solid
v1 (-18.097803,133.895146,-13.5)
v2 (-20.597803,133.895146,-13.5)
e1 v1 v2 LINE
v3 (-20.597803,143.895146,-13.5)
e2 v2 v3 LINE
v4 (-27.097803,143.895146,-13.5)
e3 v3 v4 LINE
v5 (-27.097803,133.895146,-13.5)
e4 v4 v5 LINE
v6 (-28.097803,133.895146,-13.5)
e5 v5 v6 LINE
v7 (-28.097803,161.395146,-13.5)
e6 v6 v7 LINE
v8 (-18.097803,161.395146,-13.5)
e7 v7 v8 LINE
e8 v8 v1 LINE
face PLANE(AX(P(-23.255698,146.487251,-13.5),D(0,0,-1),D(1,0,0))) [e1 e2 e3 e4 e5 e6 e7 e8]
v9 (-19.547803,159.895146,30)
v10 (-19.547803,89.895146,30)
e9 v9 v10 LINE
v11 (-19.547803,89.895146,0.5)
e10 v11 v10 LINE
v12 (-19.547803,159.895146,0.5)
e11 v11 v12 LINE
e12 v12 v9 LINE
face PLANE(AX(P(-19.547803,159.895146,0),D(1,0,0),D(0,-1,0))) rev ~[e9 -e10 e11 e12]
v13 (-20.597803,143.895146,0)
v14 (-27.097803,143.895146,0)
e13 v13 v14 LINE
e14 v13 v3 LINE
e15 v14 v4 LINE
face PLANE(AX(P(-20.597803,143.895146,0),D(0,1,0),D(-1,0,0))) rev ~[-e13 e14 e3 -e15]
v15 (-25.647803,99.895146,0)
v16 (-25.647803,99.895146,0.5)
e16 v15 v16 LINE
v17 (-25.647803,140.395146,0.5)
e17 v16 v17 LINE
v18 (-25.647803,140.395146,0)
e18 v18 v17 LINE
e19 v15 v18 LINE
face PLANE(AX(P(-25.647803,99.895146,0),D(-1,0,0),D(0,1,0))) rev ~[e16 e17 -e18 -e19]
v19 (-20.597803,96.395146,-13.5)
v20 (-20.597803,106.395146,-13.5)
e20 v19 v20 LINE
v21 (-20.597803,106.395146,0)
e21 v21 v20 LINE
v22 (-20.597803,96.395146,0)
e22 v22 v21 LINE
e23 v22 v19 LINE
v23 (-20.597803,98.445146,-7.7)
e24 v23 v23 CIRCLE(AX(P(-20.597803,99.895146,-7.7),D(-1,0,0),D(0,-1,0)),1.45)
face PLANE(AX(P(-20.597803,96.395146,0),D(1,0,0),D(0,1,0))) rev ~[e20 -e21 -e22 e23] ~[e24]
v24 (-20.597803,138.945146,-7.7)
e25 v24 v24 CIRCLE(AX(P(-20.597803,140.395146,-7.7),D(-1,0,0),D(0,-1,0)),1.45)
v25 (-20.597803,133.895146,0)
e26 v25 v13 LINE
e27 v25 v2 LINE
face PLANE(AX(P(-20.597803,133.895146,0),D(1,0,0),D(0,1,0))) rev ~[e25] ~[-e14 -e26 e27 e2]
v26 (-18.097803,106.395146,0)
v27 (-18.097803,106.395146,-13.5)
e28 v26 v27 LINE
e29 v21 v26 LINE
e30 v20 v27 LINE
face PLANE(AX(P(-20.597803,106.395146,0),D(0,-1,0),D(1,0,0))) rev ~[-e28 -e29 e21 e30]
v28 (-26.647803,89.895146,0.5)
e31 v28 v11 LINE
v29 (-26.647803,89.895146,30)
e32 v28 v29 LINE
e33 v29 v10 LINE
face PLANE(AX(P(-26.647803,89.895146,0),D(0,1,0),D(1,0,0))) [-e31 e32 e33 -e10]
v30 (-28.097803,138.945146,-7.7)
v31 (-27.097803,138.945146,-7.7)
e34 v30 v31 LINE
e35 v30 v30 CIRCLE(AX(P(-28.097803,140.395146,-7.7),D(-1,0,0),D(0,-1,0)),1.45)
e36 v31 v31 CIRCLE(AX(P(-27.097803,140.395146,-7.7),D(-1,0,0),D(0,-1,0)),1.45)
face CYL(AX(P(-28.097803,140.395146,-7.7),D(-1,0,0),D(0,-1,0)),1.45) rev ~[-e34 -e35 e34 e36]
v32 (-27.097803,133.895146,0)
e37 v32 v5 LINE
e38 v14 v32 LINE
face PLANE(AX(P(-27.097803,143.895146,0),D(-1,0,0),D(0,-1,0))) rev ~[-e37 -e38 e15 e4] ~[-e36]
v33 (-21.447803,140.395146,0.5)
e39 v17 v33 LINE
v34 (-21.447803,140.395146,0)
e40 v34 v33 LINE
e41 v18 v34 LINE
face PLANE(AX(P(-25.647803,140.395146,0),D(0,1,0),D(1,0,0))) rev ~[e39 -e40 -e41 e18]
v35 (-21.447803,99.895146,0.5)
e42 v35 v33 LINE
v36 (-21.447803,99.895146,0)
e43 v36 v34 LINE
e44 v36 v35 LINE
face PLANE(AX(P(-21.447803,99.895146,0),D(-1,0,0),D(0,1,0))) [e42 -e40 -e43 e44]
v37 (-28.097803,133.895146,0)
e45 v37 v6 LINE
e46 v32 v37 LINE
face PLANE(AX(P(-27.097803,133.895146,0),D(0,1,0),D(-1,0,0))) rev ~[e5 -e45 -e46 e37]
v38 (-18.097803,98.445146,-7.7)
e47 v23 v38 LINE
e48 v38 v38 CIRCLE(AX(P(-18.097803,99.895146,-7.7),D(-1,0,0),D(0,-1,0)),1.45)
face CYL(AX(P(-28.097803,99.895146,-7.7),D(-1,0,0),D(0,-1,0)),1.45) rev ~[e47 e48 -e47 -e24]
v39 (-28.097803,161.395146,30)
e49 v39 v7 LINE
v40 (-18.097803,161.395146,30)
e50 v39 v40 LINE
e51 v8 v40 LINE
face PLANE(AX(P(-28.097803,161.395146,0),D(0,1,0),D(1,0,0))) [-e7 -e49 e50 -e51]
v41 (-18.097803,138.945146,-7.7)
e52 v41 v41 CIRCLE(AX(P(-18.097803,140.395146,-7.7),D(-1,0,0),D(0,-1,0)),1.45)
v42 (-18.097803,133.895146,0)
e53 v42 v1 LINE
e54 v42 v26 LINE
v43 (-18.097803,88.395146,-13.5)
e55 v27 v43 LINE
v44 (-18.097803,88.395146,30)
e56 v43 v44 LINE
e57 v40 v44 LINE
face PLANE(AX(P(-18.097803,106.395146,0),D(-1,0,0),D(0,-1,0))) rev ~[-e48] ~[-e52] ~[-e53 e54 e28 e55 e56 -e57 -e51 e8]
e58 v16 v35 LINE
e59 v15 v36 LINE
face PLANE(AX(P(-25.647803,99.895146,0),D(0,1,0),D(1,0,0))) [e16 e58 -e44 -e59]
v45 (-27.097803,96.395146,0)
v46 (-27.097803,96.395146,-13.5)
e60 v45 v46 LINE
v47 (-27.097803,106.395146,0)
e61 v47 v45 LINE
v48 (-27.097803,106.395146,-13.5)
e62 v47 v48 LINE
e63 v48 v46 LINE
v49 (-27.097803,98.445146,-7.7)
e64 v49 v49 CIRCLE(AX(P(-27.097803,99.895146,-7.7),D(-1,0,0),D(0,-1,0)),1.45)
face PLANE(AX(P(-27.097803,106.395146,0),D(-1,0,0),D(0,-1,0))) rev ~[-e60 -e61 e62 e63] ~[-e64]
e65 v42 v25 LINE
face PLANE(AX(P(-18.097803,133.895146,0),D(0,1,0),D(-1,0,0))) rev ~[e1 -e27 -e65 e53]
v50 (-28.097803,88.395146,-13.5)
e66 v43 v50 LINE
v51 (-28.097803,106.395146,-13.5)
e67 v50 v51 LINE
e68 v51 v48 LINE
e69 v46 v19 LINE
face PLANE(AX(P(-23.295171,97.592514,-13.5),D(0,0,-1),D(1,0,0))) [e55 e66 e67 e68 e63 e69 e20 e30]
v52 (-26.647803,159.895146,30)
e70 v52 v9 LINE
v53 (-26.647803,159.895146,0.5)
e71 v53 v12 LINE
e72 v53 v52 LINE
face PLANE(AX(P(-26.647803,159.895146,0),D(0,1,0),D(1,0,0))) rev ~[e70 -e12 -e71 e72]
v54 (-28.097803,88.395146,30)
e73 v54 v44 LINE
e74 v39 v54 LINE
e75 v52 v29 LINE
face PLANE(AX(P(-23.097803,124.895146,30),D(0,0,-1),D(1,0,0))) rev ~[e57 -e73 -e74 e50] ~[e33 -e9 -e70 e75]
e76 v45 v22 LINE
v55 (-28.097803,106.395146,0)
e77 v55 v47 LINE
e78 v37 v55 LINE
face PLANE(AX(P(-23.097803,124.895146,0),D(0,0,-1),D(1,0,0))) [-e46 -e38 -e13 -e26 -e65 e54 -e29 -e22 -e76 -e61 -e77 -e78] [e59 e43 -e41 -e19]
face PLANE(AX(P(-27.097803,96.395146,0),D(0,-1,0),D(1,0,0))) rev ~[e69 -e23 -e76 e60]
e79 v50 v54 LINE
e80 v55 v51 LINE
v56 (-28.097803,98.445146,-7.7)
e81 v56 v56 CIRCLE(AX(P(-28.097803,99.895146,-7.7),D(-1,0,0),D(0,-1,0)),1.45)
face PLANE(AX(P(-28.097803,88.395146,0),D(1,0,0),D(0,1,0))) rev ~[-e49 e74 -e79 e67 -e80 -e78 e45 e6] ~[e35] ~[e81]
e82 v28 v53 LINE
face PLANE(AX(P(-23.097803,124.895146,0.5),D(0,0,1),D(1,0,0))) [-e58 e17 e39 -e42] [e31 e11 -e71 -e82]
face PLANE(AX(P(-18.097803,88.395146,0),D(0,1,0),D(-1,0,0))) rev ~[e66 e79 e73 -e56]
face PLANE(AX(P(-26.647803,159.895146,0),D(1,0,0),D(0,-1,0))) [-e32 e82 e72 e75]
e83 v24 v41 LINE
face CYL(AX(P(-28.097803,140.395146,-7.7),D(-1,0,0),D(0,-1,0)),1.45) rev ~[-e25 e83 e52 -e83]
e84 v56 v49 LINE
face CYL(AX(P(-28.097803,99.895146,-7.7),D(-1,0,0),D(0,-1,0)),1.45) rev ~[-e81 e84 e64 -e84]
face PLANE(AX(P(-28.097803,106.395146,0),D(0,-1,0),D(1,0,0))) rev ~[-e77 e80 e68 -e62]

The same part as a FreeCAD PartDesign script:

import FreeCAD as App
import Part
import Sketcher
from FreeCAD import Vector
Q = App.Units.Quantity

doc = App.newDocument("Part")
params = doc.addObject("Spreadsheet::Sheet", "Params")
for row, (alias, value) in enumerate([
    ("sketch1_height", "70 mm"),
    ("sketch1_width", "7.1 mm"),
    ("sketch1_width2", "4.2 mm"),
    ("sketch1_height2", "40.5 mm"),
    ("pad1_length", "0.5 mm"),
    ("sketch2_width", "10 mm"),
    ("sketch2_height", "73 mm"),
    ("sketch2_height2", "70 mm"),
    ("sketch2_width2", "7.1 mm"),
    ("pad2_length", "30 mm"),
    ("sketch3_width", "1 mm"),
    ("sketch3_width2", "10 mm"),
    ("sketch3_height", "18 mm"),
    ("sketch3_width3", "6.5 mm"),
    ("sketch3_height2", "27.5 mm"),
    ("pad3_length", "13.5 mm"),
    ("sketch4_diameter", "2.9 mm"),
], start=1):
    params.set(f"A{row}", alias)
    params.set(f"B{row}", "=" + value)
    params.setAlias(f"B{row}", alias)

body = doc.addObject("PartDesign::Body", "Body")

sketch1 = body.newObject("Sketcher::SketchObject", "Sketch")
sketch1.AttachmentSupport = (doc.getObject("XY_Plane"), [""])
sketch1.MapMode = "FlatFace"
sketch1.addGeometry(Part.LineSegment(Vector(-26.6, 159.9, 0), Vector(-26.6, 89.9, 0)), False)
sketch1.addGeometry(Part.LineSegment(Vector(-26.6, 89.9, 0), Vector(-19.5, 89.9, 0)), False)
sketch1.addGeometry(Part.LineSegment(Vector(-19.5, 89.9, 0), Vector(-19.5, 159.9, 0)), False)
sketch1.addGeometry(Part.LineSegment(Vector(-19.5, 159.9, 0), Vector(-26.6, 159.9, 0)), False)
sketch1.addGeometry(Part.LineSegment(Vector(-21.4, 99.9, 0), Vector(-25.6, 99.9, 0)), False)
sketch1.addGeometry(Part.LineSegment(Vector(-25.6, 99.9, 0), Vector(-25.6, 140.4, 0)), False)
sketch1.addGeometry(Part.LineSegment(Vector(-25.6, 140.4, 0), Vector(-21.4, 140.4, 0)), False)
sketch1.addGeometry(Part.LineSegment(Vector(-21.4, 140.4, 0), Vector(-21.4, 99.9, 0)), False)
sketch1.addConstraint(Sketcher.Constraint("Coincident", 0, 2, 1, 1))
sketch1.addConstraint(Sketcher.Constraint("Coincident", 1, 2, 2, 1))
sketch1.addConstraint(Sketcher.Constraint("Coincident", 2, 2, 3, 1))
sketch1.addConstraint(Sketcher.Constraint("Coincident", 3, 2, 0, 1))
sketch1.addConstraint(Sketcher.Constraint("Coincident", 4, 2, 5, 1))
sketch1.addConstraint(Sketcher.Constraint("Coincident", 5, 2, 6, 1))
sketch1.addConstraint(Sketcher.Constraint("Coincident", 6, 2, 7, 1))
sketch1.addConstraint(Sketcher.Constraint("Coincident", 7, 2, 4, 1))
sketch1.addConstraint(Sketcher.Constraint("Vertical", 0))
sketch1.addConstraint(Sketcher.Constraint("Horizontal", 1))
sketch1.addConstraint(Sketcher.Constraint("Vertical", 2))
sketch1.addConstraint(Sketcher.Constraint("Horizontal", 3))
sketch1.addConstraint(Sketcher.Constraint("Horizontal", 4))
sketch1.addConstraint(Sketcher.Constraint("Vertical", 5))
sketch1.addConstraint(Sketcher.Constraint("Horizontal", 6))
sketch1.addConstraint(Sketcher.Constraint("Vertical", 7))
sketch1.addConstraint(Sketcher.Constraint("DistanceY", 0, 2, 0, 1, Q("70 mm")))
sketch1.addConstraint(Sketcher.Constraint("DistanceX", 1, 1, 1, 2, Q("7.1 mm")))
sketch1.addConstraint(Sketcher.Constraint("DistanceX", 4, 2, 4, 1, Q("4.2 mm")))
sketch1.addConstraint(Sketcher.Constraint("DistanceY", 5, 1, 5, 2, Q("40.5 mm")))
sketch1.addConstraint(Sketcher.Constraint("DistanceX", 0, 2, 4, 2, Q("1 mm")))
sketch1.addConstraint(Sketcher.Constraint("DistanceY", 0, 2, 4, 2, Q("10 mm")))
sketch1.addConstraint(Sketcher.Constraint("DistanceX", 0, 2, -1, 1, Q("26.647803 mm")))
sketch1.addConstraint(Sketcher.Constraint("DistanceY", -1, 1, 0, 2, Q("89.895146 mm")))
sketch1.setExpression("Constraints[16]", "Params.sketch1_height")
sketch1.setExpression("Constraints[17]", "Params.sketch1_width")
sketch1.setExpression("Constraints[18]", "Params.sketch1_width2")
sketch1.setExpression("Constraints[19]", "Params.sketch1_height2")
pad1 = body.newObject("PartDesign::Pad", "Pad")
pad1.Profile = sketch1
pad1.setExpression("Length", "Params.pad1_length")

sketch2 = body.newObject("Sketcher::SketchObject", "Sketch001")
sketch2.AttachmentSupport = (doc.getObject("XY_Plane"), [""])
sketch2.MapMode = "FlatFace"
sketch2.addGeometry(Part.LineSegment(Vector(-28, 88, 0), Vector(-28, 161, 0)), False)
sketch2.addGeometry(Part.LineSegment(Vector(-28, 161, 0), Vector(-18, 161, 0)), False)
sketch2.addGeometry(Part.LineSegment(Vector(-18, 161, 0), Vector(-18, 88, 0)), False)
sketch2.addGeometry(Part.LineSegment(Vector(-18, 88, 0), Vector(-28, 88, 0)), False)
sketch2.addGeometry(Part.LineSegment(Vector(-20, 160, 0), Vector(-27, 160, 0)), False)
sketch2.addGeometry(Part.LineSegment(Vector(-27, 160, 0), Vector(-27, 90, 0)), False)
sketch2.addGeometry(Part.LineSegment(Vector(-27, 90, 0), Vector(-20, 90, 0)), False)
sketch2.addGeometry(Part.LineSegment(Vector(-20, 90, 0), Vector(-20, 160, 0)), False)
sketch2.addConstraint(Sketcher.Constraint("Coincident", 0, 2, 1, 1))
sketch2.addConstraint(Sketcher.Constraint("Coincident", 1, 2, 2, 1))
sketch2.addConstraint(Sketcher.Constraint("Coincident", 2, 2, 3, 1))
sketch2.addConstraint(Sketcher.Constraint("Coincident", 3, 2, 0, 1))
sketch2.addConstraint(Sketcher.Constraint("Coincident", 4, 2, 5, 1))
sketch2.addConstraint(Sketcher.Constraint("Coincident", 5, 2, 6, 1))
sketch2.addConstraint(Sketcher.Constraint("Coincident", 6, 2, 7, 1))
sketch2.addConstraint(Sketcher.Constraint("Coincident", 7, 2, 4, 1))
sketch2.addConstraint(Sketcher.Constraint("Vertical", 0))
sketch2.addConstraint(Sketcher.Constraint("Horizontal", 1))
sketch2.addConstraint(Sketcher.Constraint("Vertical", 2))
sketch2.addConstraint(Sketcher.Constraint("Horizontal", 3))
sketch2.addConstraint(Sketcher.Constraint("Horizontal", 4))
sketch2.addConstraint(Sketcher.Constraint("Vertical", 5))
sketch2.addConstraint(Sketcher.Constraint("Horizontal", 6))
sketch2.addConstraint(Sketcher.Constraint("Vertical", 7))
sketch2.addConstraint(Sketcher.Constraint("DistanceX", 1, 1, 1, 2, Q("10 mm")))
sketch2.addConstraint(Sketcher.Constraint("DistanceY", 0, 1, 0, 2, Q("73 mm")))
sketch2.addConstraint(Sketcher.Constraint("DistanceY", 5, 2, 5, 1, Q("70 mm")))
sketch2.addConstraint(Sketcher.Constraint("DistanceX", 4, 2, 4, 1, Q("7.1 mm")))
sketch2.addConstraint(Sketcher.Constraint("DistanceY", 4, 2, 0, 2, Q("1.5 mm")))
sketch2.addConstraint(Sketcher.Constraint("DistanceX", 0, 2, 4, 2, Q("1.45 mm")))
sketch2.addConstraint(Sketcher.Constraint("DistanceX", 0, 2, -1, 1, Q("28.097803 mm")))
sketch2.addConstraint(Sketcher.Constraint("DistanceY", -1, 1, 0, 2, Q("161.395146 mm")))
sketch2.setExpression("Constraints[16]", "Params.sketch2_width")
sketch2.setExpression("Constraints[17]", "Params.sketch2_height")
sketch2.setExpression("Constraints[18]", "Params.sketch2_height2")
sketch2.setExpression("Constraints[19]", "Params.sketch2_width2")
pad2 = body.newObject("PartDesign::Pad", "Pad001")
pad2.Profile = sketch2
pad2.setExpression("Length", "Params.pad2_length")

sketch3 = body.newObject("Sketcher::SketchObject", "Sketch002")
sketch3.AttachmentSupport = (doc.getObject("XY_Plane"), [""])
sketch3.MapMode = "FlatFace"
sketch3.addGeometry(Part.LineSegment(Vector(-28.1, 88.4, 0), Vector(-28.1, 106.4, 0)), False)
sketch3.addGeometry(Part.LineSegment(Vector(-28.1, 106.4, 0), Vector(-27.1, 106.4, 0)), False)
sketch3.addGeometry(Part.LineSegment(Vector(-27.1, 106.4, 0), Vector(-27.1, 96.4, 0)), False)
sketch3.addGeometry(Part.LineSegment(Vector(-27.1, 96.4, 0), Vector(-20.6, 96.4, 0)), False)
sketch3.addGeometry(Part.LineSegment(Vector(-20.6, 96.4, 0), Vector(-20.6, 106.4, 0)), False)
sketch3.addGeometry(Part.LineSegment(Vector(-20.6, 106.4, 0), Vector(-18.1, 106.4, 0)), False)
sketch3.addGeometry(Part.LineSegment(Vector(-18.1, 106.4, 0), Vector(-18.1, 88.4, 0)), False)
sketch3.addGeometry(Part.LineSegment(Vector(-18.1, 88.4, 0), Vector(-28.1, 88.4, 0)), False)
sketch3.addGeometry(Part.LineSegment(Vector(-28.1, 161.4, 0), Vector(-18.1, 161.4, 0)), False)
sketch3.addGeometry(Part.LineSegment(Vector(-18.1, 161.4, 0), Vector(-18.1, 133.9, 0)), False)
sketch3.addGeometry(Part.LineSegment(Vector(-18.1, 133.9, 0), Vector(-20.6, 133.9, 0)), False)
sketch3.addGeometry(Part.LineSegment(Vector(-20.6, 133.9, 0), Vector(-20.6, 143.9, 0)), False)
sketch3.addGeometry(Part.LineSegment(Vector(-20.6, 143.9, 0), Vector(-27.1, 143.9, 0)), False)
sketch3.addGeometry(Part.LineSegment(Vector(-27.1, 143.9, 0), Vector(-27.1, 133.9, 0)), False)
sketch3.addGeometry(Part.LineSegment(Vector(-27.1, 133.9, 0), Vector(-28.1, 133.9, 0)), False)
sketch3.addGeometry(Part.LineSegment(Vector(-28.1, 133.9, 0), Vector(-28.1, 161.4, 0)), False)
sketch3.addConstraint(Sketcher.Constraint("Coincident", 0, 2, 1, 1))
sketch3.addConstraint(Sketcher.Constraint("Coincident", 1, 2, 2, 1))
sketch3.addConstraint(Sketcher.Constraint("Coincident", 2, 2, 3, 1))
sketch3.addConstraint(Sketcher.Constraint("Coincident", 3, 2, 4, 1))
sketch3.addConstraint(Sketcher.Constraint("Coincident", 4, 2, 5, 1))
sketch3.addConstraint(Sketcher.Constraint("Coincident", 5, 2, 6, 1))
sketch3.addConstraint(Sketcher.Constraint("Coincident", 6, 2, 7, 1))
sketch3.addConstraint(Sketcher.Constraint("Coincident", 7, 2, 0, 1))
sketch3.addConstraint(Sketcher.Constraint("Coincident", 8, 2, 9, 1))
sketch3.addConstraint(Sketcher.Constraint("Coincident", 9, 2, 10, 1))
sketch3.addConstraint(Sketcher.Constraint("Coincident", 10, 2, 11, 1))
sketch3.addConstraint(Sketcher.Constraint("Coincident", 11, 2, 12, 1))
sketch3.addConstraint(Sketcher.Constraint("Coincident", 12, 2, 13, 1))
sketch3.addConstraint(Sketcher.Constraint("Coincident", 13, 2, 14, 1))
sketch3.addConstraint(Sketcher.Constraint("Coincident", 14, 2, 15, 1))
sketch3.addConstraint(Sketcher.Constraint("Coincident", 15, 2, 8, 1))
sketch3.addConstraint(Sketcher.Constraint("Vertical", 0))
sketch3.addConstraint(Sketcher.Constraint("Horizontal", 1))
sketch3.addConstraint(Sketcher.Constraint("Vertical", 2))
sketch3.addConstraint(Sketcher.Constraint("Horizontal", 3))
sketch3.addConstraint(Sketcher.Constraint("Vertical", 4))
sketch3.addConstraint(Sketcher.Constraint("Horizontal", 5))
sketch3.addConstraint(Sketcher.Constraint("Vertical", 6))
sketch3.addConstraint(Sketcher.Constraint("Horizontal", 7))
sketch3.addConstraint(Sketcher.Constraint("Horizontal", 8))
sketch3.addConstraint(Sketcher.Constraint("Vertical", 9))
sketch3.addConstraint(Sketcher.Constraint("Horizontal", 10))
sketch3.addConstraint(Sketcher.Constraint("Vertical", 11))
sketch3.addConstraint(Sketcher.Constraint("Horizontal", 12))
sketch3.addConstraint(Sketcher.Constraint("Vertical", 13))
sketch3.addConstraint(Sketcher.Constraint("Horizontal", 14))
sketch3.addConstraint(Sketcher.Constraint("Vertical", 15))
sketch3.addConstraint(Sketcher.Constraint("Horizontal", 1, 2, 4, 2))
sketch3.addConstraint(Sketcher.Constraint("Horizontal", 10, 2, 13, 2))
sketch3.addConstraint(Sketcher.Constraint("Vertical", 6, 2, 8, 2))
sketch3.addConstraint(Sketcher.Constraint("Vertical", 4, 2, 10, 2))
sketch3.addConstraint(Sketcher.Constraint("Vertical", 2, 2, 12, 2))
sketch3.addConstraint(Sketcher.Constraint("Vertical", 7, 2, 14, 2))
sketch3.addConstraint(Sketcher.Constraint("Equal", 8, 2))
sketch3.addConstraint(Sketcher.Constraint("Equal", 4, 11))
sketch3.addConstraint(Sketcher.Constraint("DistanceX", 1, 1, 1, 2, Q("1 mm")))
sketch3.addConstraint(Sketcher.Constraint("DistanceX", 7, 2, 7, 1, Q("10 mm")))
sketch3.addConstraint(Sketcher.Constraint("DistanceY", 0, 1, 0, 2, Q("18 mm")))
sketch3.addConstraint(Sketcher.Constraint("DistanceX", 3, 1, 3, 2, Q("6.5 mm")))
sketch3.addConstraint(Sketcher.Constraint("DistanceY", 9, 2, 9, 1, Q("27.5 mm")))
sketch3.addConstraint(Sketcher.Constraint("DistanceY", 5, 2, 8, 2, Q("55 mm")))
sketch3.addConstraint(Sketcher.Constraint("DistanceX", 0, 2, -1, 1, Q("28.097803 mm")))
sketch3.addConstraint(Sketcher.Constraint("DistanceY", -1, 1, 0, 2, Q("106.395146 mm")))
sketch3.setExpression("Constraints[40]", "Params.sketch3_width")
sketch3.setExpression("Constraints[41]", "Params.sketch3_width2")
sketch3.setExpression("Constraints[42]", "Params.sketch3_height")
sketch3.setExpression("Constraints[43]", "Params.sketch3_width3")
sketch3.setExpression("Constraints[44]", "Params.sketch3_height2")
pad3 = body.newObject("PartDesign::Pad", "Pad002")
pad3.Profile = sketch3
pad3.setExpression("Length", "Params.pad3_length")
pad3.Reversed = True

sketch4 = body.newObject("Sketcher::SketchObject", "Sketch003")
sketch4.AttachmentSupport = (doc.getObject("YZ_Plane"), [""])
sketch4.MapMode = "FlatFace"
sketch4.AttachmentOffset = App.Placement(Vector(0, 0, -28.097803), App.Rotation())
sketch4.addGeometry(Part.Circle(Vector(140.4, -7.7, 0), Vector(0, 0, 1), 1.4), False)
sketch4.addGeometry(Part.Circle(Vector(99.9, -7.7, 0), Vector(0, 0, 1), 1.4), False)
sketch4.addConstraint(Sketcher.Constraint("Equal", 0, 1))
sketch4.addConstraint(Sketcher.Constraint("Horizontal", 0, 3, 1, 3))
sketch4.addConstraint(Sketcher.Constraint("Diameter", 0, Q("2.9 mm")))
sketch4.addConstraint(Sketcher.Constraint("DistanceY", 0, 3, -1, 1, Q("7.7 mm")))
sketch4.addConstraint(Sketcher.Constraint("DistanceX", 1, 3, 0, 3, Q("40.5 mm")))
sketch4.addConstraint(Sketcher.Constraint("DistanceX", -1, 1, 0, 3, Q("140.395146 mm")))
sketch4.setExpression("Constraints[2]", "Params.sketch4_diameter")
pocket1 = body.newObject("PartDesign::Pocket", "Pocket")
pocket1.Profile = sketch4
pocket1.Type = "ThroughAll"
pocket1.Reversed = True

doc.recompute()
